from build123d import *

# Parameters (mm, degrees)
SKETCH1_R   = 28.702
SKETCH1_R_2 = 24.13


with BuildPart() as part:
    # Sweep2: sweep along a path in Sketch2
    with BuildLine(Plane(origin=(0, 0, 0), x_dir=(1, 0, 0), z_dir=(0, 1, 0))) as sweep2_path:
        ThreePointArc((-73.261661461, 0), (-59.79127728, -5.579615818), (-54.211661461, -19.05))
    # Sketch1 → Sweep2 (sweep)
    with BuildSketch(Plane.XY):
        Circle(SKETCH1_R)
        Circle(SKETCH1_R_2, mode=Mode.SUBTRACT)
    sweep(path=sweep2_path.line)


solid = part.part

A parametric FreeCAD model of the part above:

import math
import FreeCAD as App
import Part
import Sketcher
from FreeCAD import Vector
Q = App.Units.Quantity

doc = App.newDocument("Part")
params = doc.addObject("Spreadsheet::Sheet", "Params")
for row, (alias, value) in enumerate([
    ("sketch1_diameter", "1.9 in"),
    ("sketch1_diameter2", "2.26 in"),
    ("sketch2_radius", "0.75 in"),
    ("sketch2_width", "0.75 in"),
], start=1):
    params.set(f"A{row}", alias)
    params.set(f"B{row}", "=" + value)
    params.setAlias(f"B{row}", alias)

body = doc.addObject("PartDesign::Body", "Body")

# Sketch on XY plane
sketch1 = body.newObject("Sketcher::SketchObject", "Sketch")
sketch1.AttachmentSupport = (doc.getObject("XY_Plane"), [""])
sketch1.MapMode = "FlatFace"
sketch1.addGeometry(Part.Circle(Vector(0, 0, 0), Vector(0, 0, 1), 28.702), False)
sketch1.addGeometry(Part.Circle(Vector(0, 0, 0), Vector(0, 0, 1), 24.13), False)
sketch1.addConstraint(Sketcher.Constraint("Coincident", 0, 3, -1, 1))
sketch1.addConstraint(Sketcher.Constraint("Coincident", 1, 3, -1, 1))
sketch1.addConstraint(Sketcher.Constraint("Diameter", 1, Q("1.9 in")))
sketch1.addConstraint(Sketcher.Constraint("Diameter", 0, Q("2.26 in")))
sketch1.setExpression("Constraints[2]", "Params.sketch1_diameter")
sketch1.setExpression("Constraints[3]", "Params.sketch1_diameter2")

# Sketch on XZ plane
sketch2 = body.newObject("Sketcher::SketchObject", "Sketch001")
sketch2.AttachmentSupport = (doc.getObject("XZ_Plane"), [""])
sketch2.MapMode = "FlatFace"
sketch2.addGeometry(Part.ArcOfCircle(Part.Circle(Vector(-73.261661, 19.05, 0), Vector(0, 0, 1), 19.05), math.radians(-90), math.radians(0)), False)
sketch2.addConstraint(Sketcher.Constraint("PointOnObject", 0, 1, -1))
sketch2.addConstraint(Sketcher.Constraint("Radius", 0, Q("0.75 in")))
sketch2.addConstraint(Sketcher.Constraint("DistanceY", -1, 1, 0, 2, Q("0.75 in")))
sketch2.addConstraint(Sketcher.Constraint("DistanceX", 0, 1, 0, 2, Q("0.75 in")))
sketch2.addConstraint(Sketcher.Constraint("DistanceX", 0, 3, -1, 1, Q("73.261661 mm")))
sketch2.setExpression("Constraints[1]", "Params.sketch2_radius")
sketch2.setExpression("Constraints[3]", "Params.sketch2_width")
doc.recompute()

additivepipe = body.newObject("PartDesign::AdditivePipe", "AdditivePipe")
additivepipe.Profile = sketch1
additivepipe.Spine = (sketch2, ["Edge1"])

doc.recompute()
